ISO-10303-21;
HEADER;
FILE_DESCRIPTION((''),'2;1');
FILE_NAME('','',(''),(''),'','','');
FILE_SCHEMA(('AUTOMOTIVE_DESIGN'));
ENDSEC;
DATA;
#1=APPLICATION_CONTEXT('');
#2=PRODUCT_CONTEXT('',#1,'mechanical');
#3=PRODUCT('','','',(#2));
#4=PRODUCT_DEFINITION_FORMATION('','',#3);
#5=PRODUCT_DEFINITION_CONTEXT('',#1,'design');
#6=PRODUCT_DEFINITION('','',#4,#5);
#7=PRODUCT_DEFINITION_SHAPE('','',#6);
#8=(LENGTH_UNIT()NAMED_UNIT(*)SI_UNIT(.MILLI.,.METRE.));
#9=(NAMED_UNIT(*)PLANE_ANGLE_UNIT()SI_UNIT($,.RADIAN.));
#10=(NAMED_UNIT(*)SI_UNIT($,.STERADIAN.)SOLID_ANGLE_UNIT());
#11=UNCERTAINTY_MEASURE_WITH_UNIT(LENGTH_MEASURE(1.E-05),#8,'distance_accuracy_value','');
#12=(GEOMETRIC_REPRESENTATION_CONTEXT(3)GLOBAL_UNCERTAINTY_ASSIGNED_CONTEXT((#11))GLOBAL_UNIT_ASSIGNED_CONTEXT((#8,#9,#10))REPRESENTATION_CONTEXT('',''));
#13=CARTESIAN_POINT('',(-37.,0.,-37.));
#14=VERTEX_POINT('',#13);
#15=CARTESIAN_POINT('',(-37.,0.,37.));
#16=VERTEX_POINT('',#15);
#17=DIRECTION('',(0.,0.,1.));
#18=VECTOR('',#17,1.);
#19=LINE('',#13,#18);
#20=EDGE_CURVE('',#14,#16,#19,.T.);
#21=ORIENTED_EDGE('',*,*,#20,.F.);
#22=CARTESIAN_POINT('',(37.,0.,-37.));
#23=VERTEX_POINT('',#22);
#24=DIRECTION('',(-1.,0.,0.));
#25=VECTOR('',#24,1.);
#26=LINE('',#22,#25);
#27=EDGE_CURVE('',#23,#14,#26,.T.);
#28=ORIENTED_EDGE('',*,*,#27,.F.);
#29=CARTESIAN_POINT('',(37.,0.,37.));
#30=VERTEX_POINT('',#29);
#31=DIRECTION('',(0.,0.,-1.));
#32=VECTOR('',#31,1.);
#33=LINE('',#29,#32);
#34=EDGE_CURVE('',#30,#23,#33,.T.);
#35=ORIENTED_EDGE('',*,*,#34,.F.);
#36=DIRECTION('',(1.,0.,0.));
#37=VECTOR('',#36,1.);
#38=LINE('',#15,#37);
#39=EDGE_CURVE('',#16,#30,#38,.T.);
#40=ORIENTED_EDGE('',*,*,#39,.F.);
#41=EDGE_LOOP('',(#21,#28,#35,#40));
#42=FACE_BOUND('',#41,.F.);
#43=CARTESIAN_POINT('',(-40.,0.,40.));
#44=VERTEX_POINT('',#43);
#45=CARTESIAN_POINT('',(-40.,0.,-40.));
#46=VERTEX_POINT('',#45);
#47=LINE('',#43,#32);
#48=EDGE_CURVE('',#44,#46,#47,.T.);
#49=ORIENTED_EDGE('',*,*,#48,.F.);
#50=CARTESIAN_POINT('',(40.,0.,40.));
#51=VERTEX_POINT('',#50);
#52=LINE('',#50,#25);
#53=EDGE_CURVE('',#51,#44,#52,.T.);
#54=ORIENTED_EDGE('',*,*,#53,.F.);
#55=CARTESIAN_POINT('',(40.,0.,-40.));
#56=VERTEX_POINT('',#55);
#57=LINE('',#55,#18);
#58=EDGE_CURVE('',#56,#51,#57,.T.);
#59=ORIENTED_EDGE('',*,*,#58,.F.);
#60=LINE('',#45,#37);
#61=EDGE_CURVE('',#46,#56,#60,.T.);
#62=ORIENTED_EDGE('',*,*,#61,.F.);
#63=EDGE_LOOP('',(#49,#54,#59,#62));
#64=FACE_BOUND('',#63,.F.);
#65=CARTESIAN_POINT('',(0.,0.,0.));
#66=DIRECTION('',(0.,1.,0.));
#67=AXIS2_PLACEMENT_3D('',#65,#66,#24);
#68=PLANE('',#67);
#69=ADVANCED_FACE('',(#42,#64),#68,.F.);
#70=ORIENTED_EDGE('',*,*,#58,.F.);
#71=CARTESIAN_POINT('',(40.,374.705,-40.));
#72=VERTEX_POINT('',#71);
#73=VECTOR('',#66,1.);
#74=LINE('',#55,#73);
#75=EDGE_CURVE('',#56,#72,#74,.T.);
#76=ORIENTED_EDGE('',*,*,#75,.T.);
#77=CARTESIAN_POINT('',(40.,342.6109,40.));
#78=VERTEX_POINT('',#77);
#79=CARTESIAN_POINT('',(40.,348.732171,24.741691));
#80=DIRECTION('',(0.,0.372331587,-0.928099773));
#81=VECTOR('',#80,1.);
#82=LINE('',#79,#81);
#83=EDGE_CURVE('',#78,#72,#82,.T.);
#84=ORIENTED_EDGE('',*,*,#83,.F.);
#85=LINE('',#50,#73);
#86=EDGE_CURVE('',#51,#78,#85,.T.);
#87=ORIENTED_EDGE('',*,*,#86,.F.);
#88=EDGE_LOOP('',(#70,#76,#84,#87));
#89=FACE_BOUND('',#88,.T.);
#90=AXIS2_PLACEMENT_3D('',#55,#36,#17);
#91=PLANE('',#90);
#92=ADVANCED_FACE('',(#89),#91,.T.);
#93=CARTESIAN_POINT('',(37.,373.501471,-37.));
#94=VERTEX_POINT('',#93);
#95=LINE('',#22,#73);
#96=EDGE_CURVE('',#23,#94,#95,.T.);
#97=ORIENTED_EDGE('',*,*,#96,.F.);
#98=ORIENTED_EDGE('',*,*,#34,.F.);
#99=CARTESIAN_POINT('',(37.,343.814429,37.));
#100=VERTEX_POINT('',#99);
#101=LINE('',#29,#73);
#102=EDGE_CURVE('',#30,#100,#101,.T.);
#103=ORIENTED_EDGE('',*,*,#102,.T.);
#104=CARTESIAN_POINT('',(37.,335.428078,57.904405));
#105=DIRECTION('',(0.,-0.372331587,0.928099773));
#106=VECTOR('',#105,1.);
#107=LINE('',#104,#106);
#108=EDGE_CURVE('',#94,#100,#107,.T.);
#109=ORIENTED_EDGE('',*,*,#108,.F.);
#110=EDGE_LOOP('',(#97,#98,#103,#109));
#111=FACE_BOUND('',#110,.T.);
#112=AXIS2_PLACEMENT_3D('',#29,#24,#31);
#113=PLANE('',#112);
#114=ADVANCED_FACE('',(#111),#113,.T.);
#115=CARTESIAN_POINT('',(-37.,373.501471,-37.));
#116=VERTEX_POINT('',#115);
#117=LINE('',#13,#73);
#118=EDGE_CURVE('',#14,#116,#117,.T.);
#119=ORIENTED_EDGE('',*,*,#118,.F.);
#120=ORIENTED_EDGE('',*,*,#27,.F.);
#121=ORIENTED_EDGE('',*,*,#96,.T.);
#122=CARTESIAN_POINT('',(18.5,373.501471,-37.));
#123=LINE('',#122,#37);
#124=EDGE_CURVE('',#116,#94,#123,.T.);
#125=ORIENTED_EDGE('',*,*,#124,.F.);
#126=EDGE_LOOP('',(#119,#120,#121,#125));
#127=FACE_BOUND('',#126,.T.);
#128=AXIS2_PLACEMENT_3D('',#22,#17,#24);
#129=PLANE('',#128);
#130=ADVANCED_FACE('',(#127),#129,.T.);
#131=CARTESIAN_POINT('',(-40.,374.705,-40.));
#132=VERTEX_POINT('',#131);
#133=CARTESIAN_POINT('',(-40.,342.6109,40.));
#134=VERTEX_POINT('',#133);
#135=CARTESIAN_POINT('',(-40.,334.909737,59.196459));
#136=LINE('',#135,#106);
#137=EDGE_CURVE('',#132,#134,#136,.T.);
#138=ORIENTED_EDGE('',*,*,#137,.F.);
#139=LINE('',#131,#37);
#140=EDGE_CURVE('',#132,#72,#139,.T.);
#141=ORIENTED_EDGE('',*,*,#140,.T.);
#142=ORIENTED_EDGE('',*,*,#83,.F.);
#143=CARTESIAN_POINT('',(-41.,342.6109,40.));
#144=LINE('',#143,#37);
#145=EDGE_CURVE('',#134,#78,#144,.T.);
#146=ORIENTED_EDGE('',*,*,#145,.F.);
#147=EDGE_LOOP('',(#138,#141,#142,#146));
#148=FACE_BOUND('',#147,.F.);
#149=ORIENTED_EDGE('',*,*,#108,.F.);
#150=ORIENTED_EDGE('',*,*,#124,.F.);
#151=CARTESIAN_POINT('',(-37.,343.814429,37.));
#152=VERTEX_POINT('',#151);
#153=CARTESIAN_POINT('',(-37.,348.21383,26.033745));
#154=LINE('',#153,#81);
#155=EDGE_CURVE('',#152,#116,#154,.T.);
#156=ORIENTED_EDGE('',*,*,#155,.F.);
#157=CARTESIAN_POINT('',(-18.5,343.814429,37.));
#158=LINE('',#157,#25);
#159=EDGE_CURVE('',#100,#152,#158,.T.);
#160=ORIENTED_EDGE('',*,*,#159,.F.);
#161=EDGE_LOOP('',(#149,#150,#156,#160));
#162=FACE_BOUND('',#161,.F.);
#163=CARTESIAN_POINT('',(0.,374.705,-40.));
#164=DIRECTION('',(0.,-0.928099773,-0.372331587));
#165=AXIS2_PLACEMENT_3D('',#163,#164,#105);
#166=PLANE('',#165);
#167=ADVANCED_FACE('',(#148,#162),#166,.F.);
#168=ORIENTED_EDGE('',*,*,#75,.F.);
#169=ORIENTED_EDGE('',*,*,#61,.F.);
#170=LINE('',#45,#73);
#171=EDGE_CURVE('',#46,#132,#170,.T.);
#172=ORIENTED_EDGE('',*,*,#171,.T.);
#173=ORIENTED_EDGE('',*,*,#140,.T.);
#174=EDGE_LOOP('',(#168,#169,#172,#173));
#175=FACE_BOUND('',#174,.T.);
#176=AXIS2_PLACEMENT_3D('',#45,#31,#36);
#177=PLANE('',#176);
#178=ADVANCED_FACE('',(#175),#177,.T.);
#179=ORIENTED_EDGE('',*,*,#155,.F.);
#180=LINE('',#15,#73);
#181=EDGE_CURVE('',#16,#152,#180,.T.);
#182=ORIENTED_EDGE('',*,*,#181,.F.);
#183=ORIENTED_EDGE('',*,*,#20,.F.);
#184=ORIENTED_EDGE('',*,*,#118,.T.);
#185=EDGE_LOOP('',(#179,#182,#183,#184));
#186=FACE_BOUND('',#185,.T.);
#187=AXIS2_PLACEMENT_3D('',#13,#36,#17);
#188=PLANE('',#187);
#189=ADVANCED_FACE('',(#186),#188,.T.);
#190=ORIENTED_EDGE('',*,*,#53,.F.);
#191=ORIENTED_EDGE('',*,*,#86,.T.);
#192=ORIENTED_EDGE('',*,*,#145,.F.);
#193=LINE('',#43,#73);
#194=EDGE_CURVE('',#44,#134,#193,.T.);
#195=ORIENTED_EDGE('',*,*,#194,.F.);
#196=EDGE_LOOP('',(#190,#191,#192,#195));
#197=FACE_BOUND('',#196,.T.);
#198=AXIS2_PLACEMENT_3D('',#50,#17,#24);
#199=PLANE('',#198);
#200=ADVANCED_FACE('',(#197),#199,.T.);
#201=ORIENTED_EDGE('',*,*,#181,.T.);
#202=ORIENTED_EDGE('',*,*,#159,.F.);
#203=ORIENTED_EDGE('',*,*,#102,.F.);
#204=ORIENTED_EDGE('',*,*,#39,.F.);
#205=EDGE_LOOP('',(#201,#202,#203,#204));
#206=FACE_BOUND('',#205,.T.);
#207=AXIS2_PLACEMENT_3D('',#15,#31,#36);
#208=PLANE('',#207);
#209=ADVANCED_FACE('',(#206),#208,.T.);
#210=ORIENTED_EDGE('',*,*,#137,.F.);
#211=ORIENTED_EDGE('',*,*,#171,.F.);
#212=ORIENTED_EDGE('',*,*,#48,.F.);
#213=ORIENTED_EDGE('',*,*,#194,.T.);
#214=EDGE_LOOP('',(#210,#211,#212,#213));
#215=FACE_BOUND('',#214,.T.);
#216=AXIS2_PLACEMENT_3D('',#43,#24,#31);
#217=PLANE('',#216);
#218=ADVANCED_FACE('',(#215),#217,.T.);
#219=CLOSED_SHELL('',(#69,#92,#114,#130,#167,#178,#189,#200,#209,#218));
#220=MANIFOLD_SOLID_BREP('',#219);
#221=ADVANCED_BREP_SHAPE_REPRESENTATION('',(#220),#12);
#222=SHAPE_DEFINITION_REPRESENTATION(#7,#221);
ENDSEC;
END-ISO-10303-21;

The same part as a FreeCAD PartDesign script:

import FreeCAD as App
import Part
import Sketcher
from FreeCAD import Vector
Q = App.Units.Quantity


def add_polygon(sketch, points):
    """Adds a closed chain of lines whose ends are joined by coincident constraints."""
    first, n = sketch.GeometryCount, len(points)
    for a, b in zip(points, points[1:] + points[:1]):
        sketch.addGeometry(Part.LineSegment(App.Vector(*a, 0), App.Vector(*b, 0)), False)
    for i in range(n):
        sketch.addConstraint(Sketcher.Constraint("Coincident", first + i, 2, first + (i + 1) % n, 1))

doc = App.newDocument("Part")
body = doc.addObject("PartDesign::Body", "Body")

# Sketch on XZ plane
sketch1 = body.newObject("Sketcher::SketchObject", "Sketch")
sketch1.AttachmentSupport = (doc.getObject("XZ_Plane"), [""])
sketch1.MapMode = "FlatFace"
add_polygon(sketch1, [(40, -40), (-40, -40), (-40, 40), (40, 40)])  # lines 0-3
add_polygon(sketch1, [(-37, -37), (37, -37), (37, 37), (-37, 37)])  # lines 4-7
sketch1.addConstraint(Sketcher.Constraint("Horizontal", 0))
sketch1.addConstraint(Sketcher.Constraint("Vertical", 1))
sketch1.addConstraint(Sketcher.Constraint("Horizontal", 2))
sketch1.addConstraint(Sketcher.Constraint("Vertical", 3))
sketch1.addConstraint(Sketcher.Constraint("Horizontal", 4))
sketch1.addConstraint(Sketcher.Constraint("Vertical", 5))
sketch1.addConstraint(Sketcher.Constraint("Horizontal", 6))
sketch1.addConstraint(Sketcher.Constraint("Vertical", 7))
sketch1.addConstraint(Sketcher.Constraint("Symmetric", 0, 2, 2, 2, -1, 1))
sketch1.addConstraint(Sketcher.Constraint("Symmetric", 4, 2, 6, 2, -1, 1))
sketch1.addConstraint(Sketcher.Constraint("Equal", 2, 1))
sketch1.addConstraint(Sketcher.Constraint("Equal", 6, 5))
sketch1.addConstraint(Sketcher.Constraint("DistanceX", 0, 2, 0, 1, 80.0))
sketch1.addConstraint(Sketcher.Constraint("DistanceX", 4, 2, 3, 2, 3.0))
pad1 = body.newObject("PartDesign::Pad", "Pad")
pad1.Profile = sketch1
pad1.Length = 374.705
pad1.Reversed = True

# Sketch on YZ plane
sketch2 = body.newObject("Sketcher::SketchObject", "Sketch001")
sketch2.AttachmentSupport = (doc.getObject("YZ_Plane"), [""])
sketch2.MapMode = "FlatFace"
add_polygon(sketch2, [(374.705, -40), (374.705, 40), (342.6109, 40)])  # lines 0-2
sketch2.addConstraint(Sketcher.Constraint("Vertical", 0))
sketch2.addConstraint(Sketcher.Constraint("Horizontal", 1))
sketch2.addConstraint(Sketcher.Constraint("DistanceY", 0, 1, 0, 2, 80.0))
sketch2.addConstraint(Sketcher.Constraint("DistanceY", -1, 1, 0, 2, 40.0))
sketch2.addConstraint(Sketcher.Constraint("Angle", 2, Q("-68.1405 deg")))
sketch2.addConstraint(Sketcher.Constraint("DistanceX", -1, 1, 0, 2, 374.705))
pocket1 = body.newObject("PartDesign::Pocket", "Pocket")
pocket1.Profile = sketch2
pocket1.Type = "ThroughAll"
pocket1.Midplane = True

doc.recompute()
